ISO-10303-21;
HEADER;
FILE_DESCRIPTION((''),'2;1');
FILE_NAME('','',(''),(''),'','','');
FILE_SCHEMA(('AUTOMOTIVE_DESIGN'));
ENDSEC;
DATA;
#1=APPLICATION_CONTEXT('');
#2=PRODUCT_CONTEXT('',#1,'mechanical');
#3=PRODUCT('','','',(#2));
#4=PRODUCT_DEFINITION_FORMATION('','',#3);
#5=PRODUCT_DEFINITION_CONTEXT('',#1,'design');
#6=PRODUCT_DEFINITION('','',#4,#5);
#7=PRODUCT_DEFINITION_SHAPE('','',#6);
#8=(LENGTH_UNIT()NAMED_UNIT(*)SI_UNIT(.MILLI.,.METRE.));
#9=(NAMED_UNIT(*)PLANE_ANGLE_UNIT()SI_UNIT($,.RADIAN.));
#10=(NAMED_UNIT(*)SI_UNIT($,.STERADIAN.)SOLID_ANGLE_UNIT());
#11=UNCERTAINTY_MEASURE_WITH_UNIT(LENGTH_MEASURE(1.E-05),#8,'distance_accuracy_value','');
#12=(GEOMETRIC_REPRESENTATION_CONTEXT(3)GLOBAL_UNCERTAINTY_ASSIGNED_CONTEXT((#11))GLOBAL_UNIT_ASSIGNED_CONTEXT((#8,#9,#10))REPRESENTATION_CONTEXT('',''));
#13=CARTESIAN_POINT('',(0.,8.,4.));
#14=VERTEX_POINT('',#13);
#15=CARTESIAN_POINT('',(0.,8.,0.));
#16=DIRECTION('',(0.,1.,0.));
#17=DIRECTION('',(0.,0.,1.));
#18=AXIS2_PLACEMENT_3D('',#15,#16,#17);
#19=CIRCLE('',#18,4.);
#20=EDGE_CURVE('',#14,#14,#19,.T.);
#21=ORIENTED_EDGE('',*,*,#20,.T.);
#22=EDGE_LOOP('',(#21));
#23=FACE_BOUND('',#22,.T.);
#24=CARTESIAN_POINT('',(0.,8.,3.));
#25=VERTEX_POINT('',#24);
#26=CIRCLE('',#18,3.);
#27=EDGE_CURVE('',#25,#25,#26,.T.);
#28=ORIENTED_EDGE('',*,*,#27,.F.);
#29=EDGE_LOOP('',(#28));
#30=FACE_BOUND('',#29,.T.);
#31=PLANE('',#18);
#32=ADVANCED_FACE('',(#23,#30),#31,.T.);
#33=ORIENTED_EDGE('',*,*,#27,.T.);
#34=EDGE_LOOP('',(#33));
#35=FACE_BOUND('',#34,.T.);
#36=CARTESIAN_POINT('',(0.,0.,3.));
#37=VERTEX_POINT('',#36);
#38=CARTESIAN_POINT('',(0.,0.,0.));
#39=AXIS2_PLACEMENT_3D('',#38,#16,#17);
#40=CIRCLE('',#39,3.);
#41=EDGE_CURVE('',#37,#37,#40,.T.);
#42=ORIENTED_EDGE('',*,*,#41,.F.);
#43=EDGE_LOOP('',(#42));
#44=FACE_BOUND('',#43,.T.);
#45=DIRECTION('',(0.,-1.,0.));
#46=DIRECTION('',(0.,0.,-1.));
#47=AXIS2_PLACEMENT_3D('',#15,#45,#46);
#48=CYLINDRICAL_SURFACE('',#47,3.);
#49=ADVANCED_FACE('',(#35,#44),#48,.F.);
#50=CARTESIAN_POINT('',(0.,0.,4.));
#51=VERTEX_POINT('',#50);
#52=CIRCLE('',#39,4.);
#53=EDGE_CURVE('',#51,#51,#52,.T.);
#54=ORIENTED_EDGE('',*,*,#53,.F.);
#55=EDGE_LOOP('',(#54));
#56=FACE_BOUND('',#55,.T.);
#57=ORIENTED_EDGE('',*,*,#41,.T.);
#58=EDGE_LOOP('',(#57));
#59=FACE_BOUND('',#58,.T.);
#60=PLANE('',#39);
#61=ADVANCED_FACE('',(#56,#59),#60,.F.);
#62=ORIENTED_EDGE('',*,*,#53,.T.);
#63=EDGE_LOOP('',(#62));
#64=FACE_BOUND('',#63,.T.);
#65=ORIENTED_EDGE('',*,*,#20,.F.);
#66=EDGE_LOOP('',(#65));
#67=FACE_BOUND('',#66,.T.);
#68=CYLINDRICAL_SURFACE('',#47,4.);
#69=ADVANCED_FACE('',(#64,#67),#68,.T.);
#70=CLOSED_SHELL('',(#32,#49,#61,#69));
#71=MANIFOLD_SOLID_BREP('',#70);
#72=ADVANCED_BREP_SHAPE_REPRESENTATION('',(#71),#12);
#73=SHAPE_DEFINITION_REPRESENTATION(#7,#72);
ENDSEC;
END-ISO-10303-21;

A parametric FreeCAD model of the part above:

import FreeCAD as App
import Part
import Sketcher
Q = App.Units.Quantity

doc = App.newDocument("Part")
body = doc.addObject("PartDesign::Body", "Body")

# Sketch on XZ plane
sketch1 = body.newObject("Sketcher::SketchObject", "Sketch")
sketch1.AttachmentSupport = (doc.getObject("XZ_Plane"), [""])
sketch1.MapMode = "FlatFace"
sketch1.addGeometry([
    Part.Circle(App.Vector(0, 0, 0), App.Vector(0, 0, 1), 4),
    Part.Circle(App.Vector(0, 0, 0), App.Vector(0, 0, 1), 3),
], False)
sketch1.addConstraint([
    Sketcher.Constraint("Coincident", 0, 3, -1, 1),
    Sketcher.Constraint("Coincident", 1, 3, -1, 1),
    Sketcher.Constraint("Diameter", 0, Q("8 mm")),
    Sketcher.Constraint("Diameter", 1, Q("6 mm")),
])
pad1 = body.newObject("PartDesign::Pad", "Pad")
pad1.Profile = sketch1
pad1.Length = 8
pad1.Reversed = True

doc.recompute()
